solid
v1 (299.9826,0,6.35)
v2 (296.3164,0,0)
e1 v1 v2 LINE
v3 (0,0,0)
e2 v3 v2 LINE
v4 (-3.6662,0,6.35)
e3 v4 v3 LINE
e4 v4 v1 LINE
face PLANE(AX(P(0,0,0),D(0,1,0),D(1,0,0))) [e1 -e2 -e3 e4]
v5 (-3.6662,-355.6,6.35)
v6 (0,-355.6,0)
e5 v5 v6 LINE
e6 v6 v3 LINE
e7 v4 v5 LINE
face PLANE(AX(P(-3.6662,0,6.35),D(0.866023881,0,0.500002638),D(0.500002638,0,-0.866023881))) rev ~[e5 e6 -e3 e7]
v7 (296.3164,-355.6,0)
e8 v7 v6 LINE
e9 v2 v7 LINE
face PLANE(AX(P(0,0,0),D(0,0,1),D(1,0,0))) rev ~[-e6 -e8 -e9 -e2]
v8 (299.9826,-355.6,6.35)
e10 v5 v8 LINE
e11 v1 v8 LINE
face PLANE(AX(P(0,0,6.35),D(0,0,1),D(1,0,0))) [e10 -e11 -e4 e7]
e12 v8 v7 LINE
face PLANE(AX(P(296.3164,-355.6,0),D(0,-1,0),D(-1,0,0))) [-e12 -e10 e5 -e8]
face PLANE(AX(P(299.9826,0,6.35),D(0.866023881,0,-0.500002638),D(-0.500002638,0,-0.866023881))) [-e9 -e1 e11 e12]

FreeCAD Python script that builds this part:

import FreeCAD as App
import Part
import Sketcher

V = App.Vector
Q = App.Units.Quantity

doc = App.newDocument("Part")
body = doc.addObject("PartDesign::Body", "Body")

# Sketch on XY plane
sketch1 = body.newObject("Sketcher::SketchObject", "Sketch")
sketch1.AttachmentSupport = (doc.getObject("XY_Plane"), [""])
sketch1.MapMode = "FlatFace"
sketch1.addGeometry([
    Part.LineSegment(V(296, 0, 0), V(0, 0, 0)),
    Part.LineSegment(V(0, 0, 0), V(0, -356, 0)),
    Part.LineSegment(V(0, -356, 0), V(296, -356, 0)),
    Part.LineSegment(V(296, -356, 0), V(296, 0, 0)),
], False)
sketch1.addConstraint([
    Sketcher.Constraint("Coincident", 0, 2, 1, 1),
    Sketcher.Constraint("Coincident", 1, 2, 2, 1),
    Sketcher.Constraint("Coincident", 2, 2, 3, 1),
    Sketcher.Constraint("Coincident", 3, 2, 0, 1),
    Sketcher.Constraint("Horizontal", 0),
    Sketcher.Constraint("Vertical", 1),
    Sketcher.Constraint("Horizontal", 2),
    Sketcher.Constraint("Vertical", 3),
    Sketcher.Constraint("Coincident", 0, 2, -1, 1),
    Sketcher.Constraint("DistanceY", 1, 2, 1, 1, Q("14 in")),
    Sketcher.Constraint("DistanceX", 0, 2, 0, 1, Q("11.666 in")),
])
pad1 = body.newObject("PartDesign::Pad", "Pad")
pad1.Profile = sketch1
pad1.Length = Q("0.25 in")

# Sketch on XZ plane
sketch2 = body.newObject("Sketcher::SketchObject", "Sketch001")
sketch2.AttachmentSupport = (doc.getObject("XZ_Plane"), [""])
sketch2.MapMode = "FlatFace"
sketch2.addGeometry([
    Part.LineSegment(V(-3.7, 6.3, 0), V(0, 6.3, 0)),  # 0
    Part.LineSegment(V(0, 6.3, 0), V(0, 0, 0)),  # 1
    Part.LineSegment(V(0, 0, 0), V(-3.7, 6.3, 0)),  # 2
    Part.LineSegment(V(296.3, 0, 0), V(296.3, 6.3, 0)),  # 3
    Part.LineSegment(V(296.3, 6.3, 0), V(300, 6.3, 0)),  # 4
    Part.LineSegment(V(300, 6.3, 0), V(296.3, 0, 0)),  # 5
], False)
sketch2.addConstraint([
    Sketcher.Constraint("Coincident", 0, 2, 1, 1),
    Sketcher.Constraint("Coincident", 1, 2, 2, 1),
    Sketcher.Constraint("Coincident", 2, 2, 0, 1),
    Sketcher.Constraint("Coincident", 3, 2, 4, 1),
    Sketcher.Constraint("Coincident", 4, 2, 5, 1),
    Sketcher.Constraint("Coincident", 5, 2, 3, 1),
    Sketcher.Constraint("Horizontal", 0),
    Sketcher.Constraint("Vertical", 1),
    Sketcher.Constraint("Vertical", 3),
    Sketcher.Constraint("Horizontal", 4),
    Sketcher.Constraint("Coincident", 1, 2, -1, 1),
    Sketcher.Constraint("PointOnObject", 5, 2, -1),
    Sketcher.Constraint("Horizontal", 2, 2, 3, 2),
    Sketcher.Constraint("Equal", 0, 4),
    Sketcher.Constraint("Angle", 2, Q("120.0002 deg")),
    Sketcher.Constraint("DistanceY", 1, 2, 1, 1, Q("0.25 in")),
    Sketcher.Constraint("DistanceX", -1, 1, 3, 2, Q("11.666 in")),
])
pad2 = body.newObject("PartDesign::Pad", "Pad001")
pad2.Profile = sketch2
pad2.Length = Q("14 in")

doc.recompute()
